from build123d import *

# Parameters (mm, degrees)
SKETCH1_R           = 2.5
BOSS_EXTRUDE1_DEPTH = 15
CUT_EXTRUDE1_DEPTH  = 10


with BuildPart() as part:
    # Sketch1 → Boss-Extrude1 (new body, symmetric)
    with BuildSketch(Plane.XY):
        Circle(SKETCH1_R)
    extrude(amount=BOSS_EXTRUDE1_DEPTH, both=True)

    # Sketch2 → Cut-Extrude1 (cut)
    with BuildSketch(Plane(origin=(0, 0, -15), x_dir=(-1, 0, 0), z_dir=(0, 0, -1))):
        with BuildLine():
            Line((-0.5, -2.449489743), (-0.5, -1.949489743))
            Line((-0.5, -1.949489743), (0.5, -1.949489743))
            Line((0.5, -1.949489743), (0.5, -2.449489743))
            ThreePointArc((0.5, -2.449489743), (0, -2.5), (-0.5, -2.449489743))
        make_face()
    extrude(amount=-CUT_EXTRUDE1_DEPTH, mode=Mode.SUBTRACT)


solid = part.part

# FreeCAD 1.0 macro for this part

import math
import FreeCAD as App
import Part
import Sketcher

V = App.Vector
Q = App.Units.Quantity

doc = App.newDocument("Part")
params = doc.addObject("Spreadsheet::Sheet", "Params")
for row, (alias, value) in enumerate([
    ("sketch1_diameter", "5 mm"),
    ("pad1_length", "30 mm"),
    ("sketch2_radius", "2.5 mm"),
    ("sketch2_width", "1 mm"),
    ("sketch2_height", "0.5 mm"),
    ("pocket1_length", "10 mm"),
], start=1):
    params.set(f"A{row}", alias)
    params.set(f"B{row}", "=" + value)
    params.setAlias(f"B{row}", alias)

body = doc.addObject("PartDesign::Body", "Body")

sketch1 = doc.addObject("Sketcher::SketchObject", "Sketch")
body.addObject(sketch1)
sketch1.AttachmentSupport = (doc.XY_Plane, [""])
sketch1.MapMode = "FlatFace"
sketch1.addGeometry(Part.Circle(V(0, 0, 0), V(0, 0, 1), 2.5), False)
sketch1.addConstraint([
    Sketcher.Constraint("Coincident", 0, 3, -1, 1),
    Sketcher.Constraint("Diameter", 0, Q("5 mm")),
])
sketch1.setExpression("Constraints[1]", "Params.sketch1_diameter")
pad1 = doc.addObject("PartDesign::Pad", "Pad")
body.addObject(pad1)
pad1.Profile = sketch1
pad1.setExpression("Length", "Params.pad1_length")
pad1.Midplane = True

sketch2 = doc.addObject("Sketcher::SketchObject", "Sketch001")
body.addObject(sketch2)
sketch2.AttachmentSupport = (doc.XY_Plane, [""])
sketch2.MapMode = "FlatFace"
sketch2.AttachmentOffset = App.Placement(V(0, 0, -15), App.Rotation())
sketch2.addGeometry([
    Part.LineSegment(V(0.5, -1.9, 0), V(0.5, -2.4, 0)),
    Part.ArcOfCircle(Part.Circle(V(0, 0, 0), V(0, 0, 1), 2.5), math.radians(-102), math.radians(-78)),
    Part.LineSegment(V(-0.5, -2.4, 0), V(-0.5, -1.9, 0)),
    Part.LineSegment(V(-0.5, -1.9, 0), V(0.5, -1.9, 0)),
], False)
sketch2.addConstraint([
    Sketcher.Constraint("Coincident", 0, 2, 1, 2),
    Sketcher.Constraint("Coincident", 1, 1, 2, 1),
    Sketcher.Constraint("Coincident", 2, 2, 3, 1),
    Sketcher.Constraint("Coincident", 3, 2, 0, 1),
    Sketcher.Constraint("Vertical", 0),
    Sketcher.Constraint("Vertical", 2),
    Sketcher.Constraint("Horizontal", 3),
    Sketcher.Constraint("Coincident", 1, 3, -1, 1),
    Sketcher.Constraint("Horizontal", 0, 2, 1, 1),
    Sketcher.Constraint("Radius", 1, Q("2.5 mm")),
    Sketcher.Constraint("DistanceX", 3, 1, 3, 2, Q("1 mm")),
    Sketcher.Constraint("DistanceY", 0, 2, 0, 1, Q("0.5 mm")),
])
sketch2.setExpression("Constraints[9]", "Params.sketch2_radius")
sketch2.setExpression("Constraints[10]", "Params.sketch2_width")
sketch2.setExpression("Constraints[11]", "Params.sketch2_height")
pocket1 = doc.addObject("PartDesign::Pocket", "Pocket")
body.addObject(pocket1)
pocket1.Profile = sketch2
pocket1.setExpression("Length", "Params.pocket1_length")
pocket1.Reversed = True

doc.recompute()
